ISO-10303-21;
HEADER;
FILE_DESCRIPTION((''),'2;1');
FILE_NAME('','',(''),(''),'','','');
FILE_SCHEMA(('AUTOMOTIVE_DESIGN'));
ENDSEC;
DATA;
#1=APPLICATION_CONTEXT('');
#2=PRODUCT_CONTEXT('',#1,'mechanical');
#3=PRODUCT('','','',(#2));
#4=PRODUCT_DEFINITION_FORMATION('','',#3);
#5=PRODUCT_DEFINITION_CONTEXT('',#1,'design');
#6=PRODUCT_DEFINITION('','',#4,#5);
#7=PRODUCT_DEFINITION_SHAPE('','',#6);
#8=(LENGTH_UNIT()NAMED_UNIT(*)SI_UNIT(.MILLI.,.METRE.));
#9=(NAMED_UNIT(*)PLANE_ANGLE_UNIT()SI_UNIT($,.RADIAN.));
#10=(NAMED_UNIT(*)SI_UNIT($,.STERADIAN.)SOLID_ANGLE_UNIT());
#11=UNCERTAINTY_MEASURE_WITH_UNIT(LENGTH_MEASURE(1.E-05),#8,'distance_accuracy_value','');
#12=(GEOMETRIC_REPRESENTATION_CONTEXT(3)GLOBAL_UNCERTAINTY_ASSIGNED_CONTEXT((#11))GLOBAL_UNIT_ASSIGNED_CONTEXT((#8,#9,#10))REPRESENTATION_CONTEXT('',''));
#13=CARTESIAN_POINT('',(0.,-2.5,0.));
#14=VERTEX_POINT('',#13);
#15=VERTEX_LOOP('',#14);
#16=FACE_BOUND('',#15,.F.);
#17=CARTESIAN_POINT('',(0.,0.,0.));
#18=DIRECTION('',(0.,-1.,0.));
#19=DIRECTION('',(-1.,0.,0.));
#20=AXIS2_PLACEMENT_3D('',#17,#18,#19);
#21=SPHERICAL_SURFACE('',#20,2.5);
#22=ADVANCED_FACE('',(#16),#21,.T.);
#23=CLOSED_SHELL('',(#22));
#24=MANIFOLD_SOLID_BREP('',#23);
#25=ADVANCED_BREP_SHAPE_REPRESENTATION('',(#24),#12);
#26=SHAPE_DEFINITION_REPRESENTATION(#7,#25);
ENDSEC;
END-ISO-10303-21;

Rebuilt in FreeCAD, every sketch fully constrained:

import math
import FreeCAD as App
import Part
import Sketcher

V = App.Vector
Q = App.Units.Quantity

doc = App.newDocument("Part")
body = doc.addObject("PartDesign::Body", "Body")

# Sketch on XY plane
sketch1 = body.newObject("Sketcher::SketchObject", "Sketch")
sketch1.AttachmentSupport = (doc.getObject("XY_Plane"), [""])
sketch1.MapMode = "FlatFace"
sketch1.addGeometry(Part.LineSegment(V(0, -2.5, 0), V(0, 2.5, 0)), False)
sketch1.addGeometry(Part.ArcOfCircle(Part.Circle(V(0, 0, 0), V(0, 0, 1), 2.5), math.radians(90), math.radians(270)), False)
sketch1.addConstraint(Sketcher.Constraint("Coincident", 0, 1, 1, 2))
sketch1.addConstraint(Sketcher.Constraint("Coincident", 1, 1, 0, 2))
sketch1.addConstraint(Sketcher.Constraint("Vertical", 0))
sketch1.addConstraint(Sketcher.Constraint("Coincident", 1, 3, -1, 1))
sketch1.addConstraint(Sketcher.Constraint("PointOnObject", 0, 1, -2))
sketch1.addConstraint(Sketcher.Constraint("Radius", 1, Q("2.5 mm")))
revolution = body.newObject("PartDesign::Revolution", "Revolution")
revolution.Profile = sketch1
revolution.ReferenceAxis = (sketch1, ["V_Axis"])
revolution.Angle = 360

doc.recompute()
